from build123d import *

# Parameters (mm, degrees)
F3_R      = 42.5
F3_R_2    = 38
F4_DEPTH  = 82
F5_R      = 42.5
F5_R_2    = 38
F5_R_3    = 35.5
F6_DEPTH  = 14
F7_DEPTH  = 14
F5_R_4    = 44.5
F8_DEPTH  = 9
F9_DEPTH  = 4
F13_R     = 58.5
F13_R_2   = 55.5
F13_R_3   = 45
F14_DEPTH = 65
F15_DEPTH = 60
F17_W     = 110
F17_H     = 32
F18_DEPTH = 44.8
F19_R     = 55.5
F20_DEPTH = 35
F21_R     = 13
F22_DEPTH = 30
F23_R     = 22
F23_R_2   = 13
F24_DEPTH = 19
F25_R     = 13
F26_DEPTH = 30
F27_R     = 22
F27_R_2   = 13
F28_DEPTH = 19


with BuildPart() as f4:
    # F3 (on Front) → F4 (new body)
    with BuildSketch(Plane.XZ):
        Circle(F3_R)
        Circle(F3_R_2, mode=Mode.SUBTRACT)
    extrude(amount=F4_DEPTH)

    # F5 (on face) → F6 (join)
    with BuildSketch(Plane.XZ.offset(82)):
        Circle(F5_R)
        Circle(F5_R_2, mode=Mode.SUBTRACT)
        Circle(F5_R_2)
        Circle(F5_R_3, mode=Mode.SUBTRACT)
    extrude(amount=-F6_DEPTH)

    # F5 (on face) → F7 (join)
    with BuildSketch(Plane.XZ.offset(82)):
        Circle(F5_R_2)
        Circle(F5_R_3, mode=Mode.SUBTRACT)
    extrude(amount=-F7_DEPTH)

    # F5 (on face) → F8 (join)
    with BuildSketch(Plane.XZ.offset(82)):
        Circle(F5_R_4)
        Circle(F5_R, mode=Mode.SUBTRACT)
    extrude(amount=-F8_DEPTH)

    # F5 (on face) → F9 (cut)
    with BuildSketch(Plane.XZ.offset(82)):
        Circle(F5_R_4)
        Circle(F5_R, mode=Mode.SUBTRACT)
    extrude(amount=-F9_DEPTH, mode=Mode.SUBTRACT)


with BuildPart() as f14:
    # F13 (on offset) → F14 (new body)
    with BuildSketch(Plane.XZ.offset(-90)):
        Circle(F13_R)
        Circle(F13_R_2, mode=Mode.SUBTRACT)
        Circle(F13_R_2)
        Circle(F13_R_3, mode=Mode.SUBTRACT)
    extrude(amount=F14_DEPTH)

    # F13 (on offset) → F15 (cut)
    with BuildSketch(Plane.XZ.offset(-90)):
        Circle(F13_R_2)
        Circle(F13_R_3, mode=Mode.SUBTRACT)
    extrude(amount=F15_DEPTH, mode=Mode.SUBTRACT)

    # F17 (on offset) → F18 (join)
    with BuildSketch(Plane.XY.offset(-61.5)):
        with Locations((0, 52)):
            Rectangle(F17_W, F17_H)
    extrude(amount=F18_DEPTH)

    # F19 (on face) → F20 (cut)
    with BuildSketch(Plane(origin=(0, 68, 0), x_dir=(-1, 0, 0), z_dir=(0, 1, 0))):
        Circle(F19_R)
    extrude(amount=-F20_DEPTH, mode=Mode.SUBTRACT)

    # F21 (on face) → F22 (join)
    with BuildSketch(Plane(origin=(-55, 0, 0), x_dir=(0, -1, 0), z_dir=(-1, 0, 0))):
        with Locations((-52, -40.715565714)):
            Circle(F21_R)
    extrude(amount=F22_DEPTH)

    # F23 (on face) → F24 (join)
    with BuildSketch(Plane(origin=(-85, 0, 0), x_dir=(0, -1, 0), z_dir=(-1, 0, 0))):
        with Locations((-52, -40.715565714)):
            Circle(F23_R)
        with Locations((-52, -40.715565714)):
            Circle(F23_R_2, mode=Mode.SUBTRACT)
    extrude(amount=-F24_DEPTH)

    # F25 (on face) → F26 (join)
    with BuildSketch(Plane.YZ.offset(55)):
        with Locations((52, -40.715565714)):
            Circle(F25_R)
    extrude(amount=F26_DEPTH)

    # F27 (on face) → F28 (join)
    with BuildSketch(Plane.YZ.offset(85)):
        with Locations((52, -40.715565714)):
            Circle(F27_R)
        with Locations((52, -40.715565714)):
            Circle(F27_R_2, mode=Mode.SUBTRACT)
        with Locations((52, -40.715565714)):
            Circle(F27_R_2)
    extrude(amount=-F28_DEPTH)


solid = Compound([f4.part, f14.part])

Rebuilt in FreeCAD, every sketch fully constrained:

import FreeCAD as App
import Part
import Sketcher

V = App.Vector
Q = App.Units.Quantity

doc = App.newDocument("Part")
body = doc.addObject("PartDesign::Body", "Body")

# Sketch on XZ plane
sketch1 = body.newObject("Sketcher::SketchObject", "Sketch")
sketch1.AttachmentSupport = (doc.getObject("XZ_Plane"), [""])
sketch1.MapMode = "FlatFace"
sketch1.addGeometry(Part.Circle(V(0, 0, 0), V(0, 0, 1), 42.5), False)
sketch1.addGeometry(Part.Circle(V(0, 0, 0), V(0, 0, 1), 38), False)
sketch1.addConstraint(Sketcher.Constraint("Coincident", 0, 3, -1, 1))
sketch1.addConstraint(Sketcher.Constraint("Coincident", 1, 3, -1, 1))
sketch1.addConstraint(Sketcher.Constraint("Diameter", 0, Q("85 mm")))
sketch1.addConstraint(Sketcher.Constraint("Diameter", 1, Q("76 mm")))
pad1 = body.newObject("PartDesign::Pad", "Pad")
pad1.Profile = sketch1
pad1.Length = 82

# Sketch on XZ plane
sketch2 = body.newObject("Sketcher::SketchObject", "Sketch001")
sketch2.AttachmentSupport = (doc.getObject("XZ_Plane"), [""])
sketch2.MapMode = "FlatFace"
sketch2.AttachmentOffset = App.Placement(V(0, 0, 82), App.Rotation())
sketch2.addGeometry(Part.Circle(V(0, 0, 0), V(0, 0, 1), 42.5), False)
sketch2.addGeometry(Part.Circle(V(0, 0, 0), V(0, 0, 1), 35.5), False)
sketch2.addConstraint(Sketcher.Constraint("Coincident", 0, 3, -1, 1))
sketch2.addConstraint(Sketcher.Constraint("Coincident", 1, 3, -1, 1))
sketch2.addConstraint(Sketcher.Constraint("Diameter", 0, Q("85 mm")))
sketch2.addConstraint(Sketcher.Constraint("Diameter", 1, Q("71 mm")))
pad2 = body.newObject("PartDesign::Pad", "Pad001")
pad2.Profile = sketch2
pad2.Length = 14
pad2.Reversed = True

# Sketch on XZ plane
sketch3 = body.newObject("Sketcher::SketchObject", "Sketch002")
sketch3.AttachmentSupport = (doc.getObject("XZ_Plane"), [""])
sketch3.MapMode = "FlatFace"
sketch3.AttachmentOffset = App.Placement(V(0, 0, 82), App.Rotation())
sketch3.addGeometry(Part.Circle(V(0, 0, 0), V(0, 0, 1), 38), False)
sketch3.addGeometry(Part.Circle(V(0, 0, 0), V(0, 0, 1), 35.5), False)
sketch3.addConstraint(Sketcher.Constraint("Coincident", 0, 3, -1, 1))
sketch3.addConstraint(Sketcher.Constraint("Coincident", 1, 3, -1, 1))
sketch3.addConstraint(Sketcher.Constraint("Diameter", 0, Q("76 mm")))
sketch3.addConstraint(Sketcher.Constraint("Diameter", 1, Q("71 mm")))
pad3 = body.newObject("PartDesign::Pad", "Pad002")
pad3.Profile = sketch3
pad3.Length = 14
pad3.Reversed = True

# Sketch on XZ plane
sketch4 = body.newObject("Sketcher::SketchObject", "Sketch003")
sketch4.AttachmentSupport = (doc.getObject("XZ_Plane"), [""])
sketch4.MapMode = "FlatFace"
sketch4.AttachmentOffset = App.Placement(V(0, 0, 82), App.Rotation())
sketch4.addGeometry(Part.Circle(V(0, 0, 0), V(0, 0, 1), 44.5), False)
sketch4.addGeometry(Part.Circle(V(0, 0, 0), V(0, 0, 1), 42.5), False)
sketch4.addConstraint(Sketcher.Constraint("Coincident", 0, 3, -1, 1))
sketch4.addConstraint(Sketcher.Constraint("Coincident", 1, 3, -1, 1))
sketch4.addConstraint(Sketcher.Constraint("Diameter", 0, Q("89 mm")))
sketch4.addConstraint(Sketcher.Constraint("Diameter", 1, Q("85 mm")))
pad4 = body.newObject("PartDesign::Pad", "Pad003")
pad4.Profile = sketch4
pad4.Length = 9
pad4.Reversed = True

# Sketch on XZ plane
sketch5 = body.newObject("Sketcher::SketchObject", "Sketch004")
sketch5.AttachmentSupport = (doc.getObject("XZ_Plane"), [""])
sketch5.MapMode = "FlatFace"
sketch5.AttachmentOffset = App.Placement(V(0, 0, 82), App.Rotation())
sketch5.addGeometry(Part.Circle(V(0, 0, 0), V(0, 0, 1), 44.5), False)
sketch5.addGeometry(Part.Circle(V(0, 0, 0), V(0, 0, 1), 42.5), False)
sketch5.addConstraint(Sketcher.Constraint("Coincident", 0, 3, -1, 1))
sketch5.addConstraint(Sketcher.Constraint("Coincident", 1, 3, -1, 1))
sketch5.addConstraint(Sketcher.Constraint("Diameter", 0, Q("89 mm")))
sketch5.addConstraint(Sketcher.Constraint("Diameter", 1, Q("85 mm")))
pocket1 = body.newObject("PartDesign::Pocket", "Pocket")
pocket1.Profile = sketch5
pocket1.Length = 4
body2 = doc.addObject("PartDesign::Body", "Body001")

# Sketch on XZ plane
sketch6 = body2.newObject("Sketcher::SketchObject", "Sketch005")
sketch6.AttachmentSupport = (doc.getObject("XZ_Plane001"), [""])
sketch6.MapMode = "FlatFace"
sketch6.AttachmentOffset = App.Placement(V(0, 0, -90), App.Rotation())
sketch6.addGeometry(Part.Circle(V(0, 0, 0), V(0, 0, 1), 58.5), False)
sketch6.addGeometry(Part.Circle(V(0, 0, 0), V(0, 0, 1), 45), False)
sketch6.addConstraint(Sketcher.Constraint("Coincident", 0, 3, -1, 1))
sketch6.addConstraint(Sketcher.Constraint("Coincident", 1, 3, -1, 1))
sketch6.addConstraint(Sketcher.Constraint("Diameter", 0, Q("117 mm")))
sketch6.addConstraint(Sketcher.Constraint("Diameter", 1, Q("90 mm")))
pad5 = body2.newObject("PartDesign::Pad", "Pad004")
pad5.Profile = sketch6
pad5.Length = 65

# Sketch on XZ plane
sketch7 = body2.newObject("Sketcher::SketchObject", "Sketch006")
sketch7.AttachmentSupport = (doc.getObject("XZ_Plane001"), [""])
sketch7.MapMode = "FlatFace"
sketch7.AttachmentOffset = App.Placement(V(0, 0, -90), App.Rotation())
sketch7.addGeometry(Part.Circle(V(0, 0, 0), V(0, 0, 1), 55.5), False)
sketch7.addGeometry(Part.Circle(V(0, 0, 0), V(0, 0, 1), 45), False)
sketch7.addConstraint(Sketcher.Constraint("Coincident", 0, 3, -1, 1))
sketch7.addConstraint(Sketcher.Constraint("Coincident", 1, 3, -1, 1))
sketch7.addConstraint(Sketcher.Constraint("Diameter", 0, Q("111 mm")))
sketch7.addConstraint(Sketcher.Constraint("Diameter", 1, Q("90 mm")))
pocket2 = body2.newObject("PartDesign::Pocket", "Pocket001")
pocket2.Profile = sketch7
pocket2.Length = 60
pocket2.Reversed = True

# Sketch on XY plane
sketch8 = body2.newObject("Sketcher::SketchObject", "Sketch007")
sketch8.AttachmentSupport = (doc.getObject("XY_Plane001"), [""])
sketch8.MapMode = "FlatFace"
sketch8.AttachmentOffset = App.Placement(V(0, 0, -61.5), App.Rotation())
sketch8.addGeometry(Part.LineSegment(V(-55, 68, 0), V(-55, 36, 0)), False)
sketch8.addGeometry(Part.LineSegment(V(-55, 36, 0), V(55, 36, 0)), False)
sketch8.addGeometry(Part.LineSegment(V(55, 36, 0), V(55, 68, 0)), False)
sketch8.addGeometry(Part.LineSegment(V(55, 68, 0), V(-55, 68, 0)), False)
sketch8.addConstraint(Sketcher.Constraint("Coincident", 0, 2, 1, 1))
sketch8.addConstraint(Sketcher.Constraint("Coincident", 1, 2, 2, 1))
sketch8.addConstraint(Sketcher.Constraint("Coincident", 2, 2, 3, 1))
sketch8.addConstraint(Sketcher.Constraint("Coincident", 3, 2, 0, 1))
sketch8.addConstraint(Sketcher.Constraint("Vertical", 0))
sketch8.addConstraint(Sketcher.Constraint("Horizontal", 1))
sketch8.addConstraint(Sketcher.Constraint("Vertical", 2))
sketch8.addConstraint(Sketcher.Constraint("Horizontal", 3))
sketch8.addConstraint(Sketcher.Constraint("DistanceX", 1, 1, 1, 2, Q("110 mm")))
sketch8.addConstraint(Sketcher.Constraint("DistanceY", 0, 2, 0, 1, Q("32 mm")))
sketch8.addConstraint(Sketcher.Constraint("DistanceX", 0, 2, -1, 1, Q("55 mm")))
sketch8.addConstraint(Sketcher.Constraint("DistanceY", -1, 1, 0, 2, Q("36 mm")))
pad6 = body2.newObject("PartDesign::Pad", "Pad005")
pad6.Profile = sketch8
pad6.Length = 44.8

# Sketch on XZ plane
sketch9 = body2.newObject("Sketcher::SketchObject", "Sketch008")
sketch9.AttachmentSupport = (doc.getObject("XZ_Plane001"), [""])
sketch9.MapMode = "FlatFace"
sketch9.AttachmentOffset = App.Placement(V(0, 0, -68), App.Rotation())
sketch9.addGeometry(Part.Circle(V(0, 0, 0), V(0, 0, 1), 55.5), False)
sketch9.addConstraint(Sketcher.Constraint("Coincident", 0, 3, -1, 1))
sketch9.addConstraint(Sketcher.Constraint("Diameter", 0, Q("111 mm")))
pocket3 = body2.newObject("PartDesign::Pocket", "Pocket002")
pocket3.Profile = sketch9
pocket3.Length = 35
pocket3.Reversed = True

# Sketch on YZ plane
sketch10 = body2.newObject("Sketcher::SketchObject", "Sketch009")
sketch10.AttachmentSupport = (doc.getObject("YZ_Plane001"), [""])
sketch10.MapMode = "FlatFace"
sketch10.AttachmentOffset = App.Placement(V(0, 0, -55), App.Rotation())
sketch10.addGeometry(Part.Circle(V(52, -40.715566, 0), V(0, 0, 1), 13), False)
sketch10.addConstraint(Sketcher.Constraint("Diameter", 0, Q("26 mm")))
sketch10.addConstraint(Sketcher.Constraint("DistanceX", -1, 1, 0, 3, Q("52 mm")))
sketch10.addConstraint(Sketcher.Constraint("DistanceY", 0, 3, -1, 1, Q("40.715566 mm")))
pad7 = body2.newObject("PartDesign::Pad", "Pad006")
pad7.Profile = sketch10
pad7.Length = 30
pad7.Reversed = True

# Sketch on YZ plane
sketch11 = body2.newObject("Sketcher::SketchObject", "Sketch010")
sketch11.AttachmentSupport = (doc.getObject("YZ_Plane001"), [""])
sketch11.MapMode = "FlatFace"
sketch11.AttachmentOffset = App.Placement(V(0, 0, -85), App.Rotation())
sketch11.addGeometry(Part.Circle(V(52, -40.715566, 0), V(0, 0, 1), 22), False)
sketch11.addGeometry(Part.Circle(V(52, -40.715566, 0), V(0, 0, 1), 13), False)
sketch11.addConstraint(Sketcher.Constraint("Coincident", 1, 3, 0, 3))
sketch11.addConstraint(Sketcher.Constraint("Diameter", 0, Q("44 mm")))
sketch11.addConstraint(Sketcher.Constraint("Diameter", 1, Q("26 mm")))
sketch11.addConstraint(Sketcher.Constraint("DistanceX", -1, 1, 0, 3, Q("52 mm")))
sketch11.addConstraint(Sketcher.Constraint("DistanceY", 0, 3, -1, 1, Q("40.715566 mm")))
pad8 = body2.newObject("PartDesign::Pad", "Pad007")
pad8.Profile = sketch11
pad8.Length = 19

# Sketch on YZ plane
sketch12 = body2.newObject("Sketcher::SketchObject", "Sketch011")
sketch12.AttachmentSupport = (doc.getObject("YZ_Plane001"), [""])
sketch12.MapMode = "FlatFace"
sketch12.AttachmentOffset = App.Placement(V(0, 0, 55), App.Rotation())
sketch12.addGeometry(Part.Circle(V(52, -40.715566, 0), V(0, 0, 1), 13), False)
sketch12.addConstraint(Sketcher.Constraint("Diameter", 0, Q("26 mm")))
sketch12.addConstraint(Sketcher.Constraint("DistanceX", -1, 1, 0, 3, Q("52 mm")))
sketch12.addConstraint(Sketcher.Constraint("DistanceY", 0, 3, -1, 1, Q("40.715566 mm")))
pad9 = body2.newObject("PartDesign::Pad", "Pad008")
pad9.Profile = sketch12
pad9.Length = 30

# Sketch on YZ plane
sketch13 = body2.newObject("Sketcher::SketchObject", "Sketch012")
sketch13.AttachmentSupport = (doc.getObject("YZ_Plane001"), [""])
sketch13.MapMode = "FlatFace"
sketch13.AttachmentOffset = App.Placement(V(0, 0, 85), App.Rotation())
sketch13.addGeometry(Part.Circle(V(52, -40.715566, 0), V(0, 0, 1), 22), False)
sketch13.addConstraint(Sketcher.Constraint("Diameter", 0, Q("44 mm")))
sketch13.addConstraint(Sketcher.Constraint("DistanceX", -1, 1, 0, 3, Q("52 mm")))
sketch13.addConstraint(Sketcher.Constraint("DistanceY", 0, 3, -1, 1, Q("40.715566 mm")))
pad10 = body2.newObject("PartDesign::Pad", "Pad009")
pad10.Profile = sketch13
pad10.Length = 19
pad10.Reversed = True

doc.recompute()
